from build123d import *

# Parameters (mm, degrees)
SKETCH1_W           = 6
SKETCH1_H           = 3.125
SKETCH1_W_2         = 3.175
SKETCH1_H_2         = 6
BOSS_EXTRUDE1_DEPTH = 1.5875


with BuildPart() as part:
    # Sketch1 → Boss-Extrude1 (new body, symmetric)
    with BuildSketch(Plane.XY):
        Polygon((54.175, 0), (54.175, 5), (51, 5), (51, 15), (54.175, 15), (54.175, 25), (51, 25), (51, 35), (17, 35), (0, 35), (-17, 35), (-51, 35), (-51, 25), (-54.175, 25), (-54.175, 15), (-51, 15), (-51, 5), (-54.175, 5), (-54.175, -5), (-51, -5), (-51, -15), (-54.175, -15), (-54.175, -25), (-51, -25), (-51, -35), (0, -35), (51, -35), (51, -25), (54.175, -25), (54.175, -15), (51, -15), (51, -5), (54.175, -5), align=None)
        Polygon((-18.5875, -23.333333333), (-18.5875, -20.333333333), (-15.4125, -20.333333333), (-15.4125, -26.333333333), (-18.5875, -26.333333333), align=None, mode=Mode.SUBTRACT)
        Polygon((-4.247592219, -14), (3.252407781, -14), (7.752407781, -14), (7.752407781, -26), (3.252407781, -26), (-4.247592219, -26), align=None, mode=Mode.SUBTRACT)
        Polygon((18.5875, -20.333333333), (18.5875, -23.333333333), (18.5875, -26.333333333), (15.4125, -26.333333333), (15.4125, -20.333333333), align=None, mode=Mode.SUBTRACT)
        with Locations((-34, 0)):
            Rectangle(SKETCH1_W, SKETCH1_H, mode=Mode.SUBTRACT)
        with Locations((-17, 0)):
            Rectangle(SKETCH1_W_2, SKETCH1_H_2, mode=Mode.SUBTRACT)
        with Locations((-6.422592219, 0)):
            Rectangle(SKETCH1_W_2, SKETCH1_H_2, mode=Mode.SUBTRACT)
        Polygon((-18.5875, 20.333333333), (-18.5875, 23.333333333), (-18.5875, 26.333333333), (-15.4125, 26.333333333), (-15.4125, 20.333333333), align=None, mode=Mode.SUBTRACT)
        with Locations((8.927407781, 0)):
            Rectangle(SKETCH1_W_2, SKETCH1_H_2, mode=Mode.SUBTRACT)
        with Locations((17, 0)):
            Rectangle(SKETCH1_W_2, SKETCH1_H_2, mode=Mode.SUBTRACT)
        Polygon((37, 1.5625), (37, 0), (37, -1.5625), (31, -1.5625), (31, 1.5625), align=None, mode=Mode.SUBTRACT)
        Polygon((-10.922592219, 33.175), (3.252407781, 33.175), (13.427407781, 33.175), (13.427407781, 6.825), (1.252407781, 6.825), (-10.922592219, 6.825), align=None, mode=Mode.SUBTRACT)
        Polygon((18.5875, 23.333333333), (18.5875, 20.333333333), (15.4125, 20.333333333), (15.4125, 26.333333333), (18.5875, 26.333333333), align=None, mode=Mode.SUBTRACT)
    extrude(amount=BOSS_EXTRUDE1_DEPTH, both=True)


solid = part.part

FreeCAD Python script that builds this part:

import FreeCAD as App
import Part
import Sketcher

V = App.Vector
Q = App.Units.Quantity


def add_polygon(sketch, points):
    """Adds a closed chain of lines whose ends are joined by coincident constraints."""
    first, n = sketch.GeometryCount, len(points)
    for a, b in zip(points, points[1:] + points[:1]):
        sketch.addGeometry(Part.LineSegment(App.Vector(*a, 0), App.Vector(*b, 0)), False)
    for i in range(n):
        sketch.addConstraint(Sketcher.Constraint("Coincident", first + i, 2, first + (i + 1) % n, 1))

doc = App.newDocument("Part")
body = doc.addObject("PartDesign::Body", "Body")

# Sketch on XY plane
sketch1 = body.newObject("Sketcher::SketchObject", "Sketch")
sketch1.AttachmentSupport = (doc.getObject("XY_Plane"), [""])
sketch1.MapMode = "FlatFace"
add_polygon(sketch1, [(54.2, 5), (51, 5), (51, 15), (54.2, 15), (54.2, 25), (51, 25), (51, 35), (-51, 35), (-51, 25), (-54.2, 25), (-54.2, 15), (-51, 15), (-51, 5), (-54.2, 5), (-54.2, -5), (-51, -5), (-51, -15), (-54.2, -15), (-54.2, -25), (-51, -25), (-51, -35), (51, -35), (51, -25), (54.2, -25), (54.2, -15), (51, -15), (51, -5), (54.2, -5)])  # lines 0-27
add_polygon(sketch1, [(-18.6, -26.3), (-18.6, -20.3), (-15.4, -20.3), (-15.4, -26.3)])  # lines 28-31
add_polygon(sketch1, [(-31, -1.6), (-37, -1.6), (-37, 1.6), (-31, 1.6)])  # lines 32-35
add_polygon(sketch1, [(-15.4, -3), (-18.6, -3), (-18.6, 3), (-15.4, 3)])  # lines 36-39
add_polygon(sketch1, [(-4.8, -3), (-8, -3), (-8, 3), (-4.8, 3)])  # lines 40-43
add_polygon(sketch1, [(-4.2, -26), (-4.2, -14), (7.8, -14), (7.8, -26)])  # lines 44-47
add_polygon(sketch1, [(15.4, -20.3), (18.6, -20.3), (18.6, -26.3), (15.4, -26.3)])  # lines 48-51
add_polygon(sketch1, [(10.5, -3), (7.3, -3), (7.3, 3), (10.5, 3)])  # lines 52-55
add_polygon(sketch1, [(18.6, -3), (15.4, -3), (15.4, 3), (18.6, 3)])  # lines 56-59
add_polygon(sketch1, [(31, 1.6), (37, 1.6), (37, -1.6), (31, -1.6)])  # lines 60-63
add_polygon(sketch1, [(-15.4, 20.3), (-18.6, 20.3), (-18.6, 26.3), (-15.4, 26.3)])  # lines 64-67
add_polygon(sketch1, [(-10.9, 6.8), (-10.9, 33.2), (13.4, 33.2), (13.4, 6.8)])  # lines 68-71
add_polygon(sketch1, [(18.6, 26.3), (18.6, 20.3), (15.4, 20.3), (15.4, 26.3)])  # lines 72-75
sketch1.addConstraint([
    Sketcher.Constraint("Horizontal", 0),
    Sketcher.Constraint("Vertical", 1),
    Sketcher.Constraint("Horizontal", 2),
    Sketcher.Constraint("Vertical", 3),
    Sketcher.Constraint("Horizontal", 4),
    Sketcher.Constraint("Vertical", 5),
    Sketcher.Constraint("Horizontal", 6),
    Sketcher.Constraint("Vertical", 7),
    Sketcher.Constraint("Horizontal", 8),
    Sketcher.Constraint("Vertical", 9),
    Sketcher.Constraint("Horizontal", 10),
    Sketcher.Constraint("Vertical", 11),
    Sketcher.Constraint("Horizontal", 12),
    Sketcher.Constraint("Vertical", 13),
    Sketcher.Constraint("Horizontal", 14),
    Sketcher.Constraint("Vertical", 15),
    Sketcher.Constraint("Horizontal", 16),
    Sketcher.Constraint("Vertical", 17),
    Sketcher.Constraint("Horizontal", 18),
    Sketcher.Constraint("Vertical", 19),
    Sketcher.Constraint("Horizontal", 20),
    Sketcher.Constraint("Vertical", 21),
    Sketcher.Constraint("Horizontal", 22),
    Sketcher.Constraint("Vertical", 23),
    Sketcher.Constraint("Horizontal", 24),
    Sketcher.Constraint("Vertical", 25),
    Sketcher.Constraint("Horizontal", 26),
    Sketcher.Constraint("Vertical", 27),
    Sketcher.Constraint("Vertical", 28),
    Sketcher.Constraint("Horizontal", 29),
    Sketcher.Constraint("Vertical", 30),
    Sketcher.Constraint("Horizontal", 31),
    Sketcher.Constraint("Horizontal", 32),
    Sketcher.Constraint("Vertical", 33),
    Sketcher.Constraint("Horizontal", 34),
    Sketcher.Constraint("Vertical", 35),
    Sketcher.Constraint("Horizontal", 36),
    Sketcher.Constraint("Vertical", 37),
    Sketcher.Constraint("Horizontal", 38),
    Sketcher.Constraint("Vertical", 39),
    Sketcher.Constraint("Horizontal", 40),
    Sketcher.Constraint("Vertical", 41),
    Sketcher.Constraint("Horizontal", 42),
    Sketcher.Constraint("Vertical", 43),
    Sketcher.Constraint("Vertical", 44),
    Sketcher.Constraint("Horizontal", 45),
    Sketcher.Constraint("Vertical", 46),
    Sketcher.Constraint("Horizontal", 47),
    Sketcher.Constraint("Horizontal", 48),
    Sketcher.Constraint("Vertical", 49),
    Sketcher.Constraint("Horizontal", 50),
    Sketcher.Constraint("Vertical", 51),
    Sketcher.Constraint("Horizontal", 52),
    Sketcher.Constraint("Vertical", 53),
    Sketcher.Constraint("Horizontal", 54),
    Sketcher.Constraint("Vertical", 55),
    Sketcher.Constraint("Horizontal", 56),
    Sketcher.Constraint("Vertical", 57),
    Sketcher.Constraint("Horizontal", 58),
    Sketcher.Constraint("Vertical", 59),
    Sketcher.Constraint("Horizontal", 60),
    Sketcher.Constraint("Vertical", 61),
    Sketcher.Constraint("Horizontal", 62),
    Sketcher.Constraint("Vertical", 63),
    Sketcher.Constraint("Horizontal", 64),
    Sketcher.Constraint("Vertical", 65),
    Sketcher.Constraint("Horizontal", 66),
    Sketcher.Constraint("Vertical", 67),
    Sketcher.Constraint("Vertical", 68),
    Sketcher.Constraint("Horizontal", 69),
    Sketcher.Constraint("Vertical", 70),
    Sketcher.Constraint("Horizontal", 71),
    Sketcher.Constraint("Vertical", 72),
    Sketcher.Constraint("Horizontal", 73),
    Sketcher.Constraint("Vertical", 74),
    Sketcher.Constraint("Horizontal", 75),
    Sketcher.Constraint("Symmetric", 0, 2, 14, 2, -1, 1),
    Sketcher.Constraint("Symmetric", 2, 2, 16, 2, -1, 1),
    Sketcher.Constraint("Symmetric", 4, 2, 18, 2, -1, 1),
    Sketcher.Constraint("Symmetric", 6, 2, 20, 2, -1, 1),
    Sketcher.Constraint("Symmetric", 8, 2, 22, 2, -1, 1),
    Sketcher.Constraint("Symmetric", 10, 2, 24, 2, -1, 1),
    Sketcher.Constraint("Symmetric", 12, 2, 26, 2, -1, 1),
    Sketcher.Constraint("Symmetric", 38, 2, 56, 2, -1, 1),
    Sketcher.Constraint("Symmetric", 36, 2, 58, 2, -1, 1),
    Sketcher.Constraint("Symmetric", 32, 2, 60, 2, -1, 1),
    Sketcher.Constraint("Symmetric", 34, 2, 62, 2, -1, 1),
    Sketcher.Constraint("Symmetric", 48, 2, 64, 2, -1, 1),
    Sketcher.Constraint("Symmetric", 50, 2, 66, 2, -1, 1),
    Sketcher.Constraint("Symmetric", 28, 2, 72, 2, -1, 1),
    Sketcher.Constraint("Symmetric", 30, 2, 74, 2, -1, 1),
    Sketcher.Constraint("Symmetric", 4, 2, 7, 2, -2),
    Sketcher.Constraint("Symmetric", 2, 2, 9, 2, -2),
    Sketcher.Constraint("Symmetric", 0, 2, 11, 2, -2),
    Sketcher.Constraint("Symmetric", 28, 2, 48, 2, -2),
    Sketcher.Constraint("Symmetric", 30, 2, 50, 2, -2),
    Sketcher.Constraint("Horizontal", 39, 2, 40, 2),
    Sketcher.Constraint("Horizontal", 38, 2, 41, 2),
    Sketcher.Constraint("Horizontal", 43, 2, 52, 2),
    Sketcher.Constraint("Horizontal", 42, 2, 53, 2),
    Sketcher.Constraint("Horizontal", 55, 2, 56, 2),
    Sketcher.Constraint("Horizontal", 34, 2, 60, 2),
    Sketcher.Constraint("Vertical", 1, 2, 4, 2),
    Sketcher.Constraint("Vertical", 9, 2, 12, 2),
    Sketcher.Constraint("Vertical", 31, 2, 36, 2),
    Sketcher.Constraint("Vertical", 30, 2, 38, 2),
    Sketcher.Constraint("Equal", 26, 29),
    Sketcher.Constraint("Equal", 38, 40),
    Sketcher.Constraint("Equal", 50, 52),
    Sketcher.Constraint("Equal", 1, 3),
    Sketcher.Constraint("Equal", 3, 5),
    Sketcher.Constraint("Equal", 11, 13),
    Sketcher.Constraint("Equal", 62, 28),
    Sketcher.Constraint("Equal", 30, 37),
    Sketcher.Constraint("Equal", 47, 44),
    Sketcher.Constraint("DistanceX", 6, 2, 6, 1, Q("102 mm")),
    Sketcher.Constraint("DistanceX", 32, 2, 32, 1, Q("6 mm")),
    Sketcher.Constraint("DistanceX", 45, 1, 45, 2, Q("12 mm")),
    Sketcher.Constraint("DistanceY", 1, 1, 1, 2, Q("10 mm")),
    Sketcher.Constraint("DistanceX", 32, 2, -1, 1, Q("37 mm")),
    Sketcher.Constraint("DistanceY", 44, 2, -1, 1, Q("14 mm")),
    Sketcher.Constraint("DistanceX", 69, 1, 69, 2, Q("24.35 mm")),
    Sketcher.Constraint("DistanceY", 68, 1, 68, 2, Q("26.35 mm")),
    Sketcher.Constraint("DistanceX", 0, 2, 0, 1, Q("3.175 mm")),
    Sketcher.Constraint("DistanceY", 33, 1, 33, 2, Q("3.125 mm")),
    Sketcher.Constraint("DistanceY", -1, 1, 68, 2, Q("33.175 mm")),
    Sketcher.Constraint("DistanceX", 28, 2, -1, 1, Q("18.5875 mm")),
    Sketcher.Constraint("DistanceY", 28, 2, -1, 1, Q("20.333333 mm")),
    Sketcher.Constraint("DistanceX", 40, 2, -1, 1, Q("8.010092 mm")),
    Sketcher.Constraint("DistanceX", 44, 2, -1, 1, Q("4.247592 mm")),
    Sketcher.Constraint("DistanceX", -1, 1, 52, 2, Q("7.339908 mm")),
    Sketcher.Constraint("DistanceX", 68, 2, -1, 1, Q("10.922592 mm")),
])
pad1 = body.newObject("PartDesign::Pad", "Pad")
pad1.Profile = sketch1
pad1.Length = 3.175
pad1.Midplane = True

doc.recompute()
